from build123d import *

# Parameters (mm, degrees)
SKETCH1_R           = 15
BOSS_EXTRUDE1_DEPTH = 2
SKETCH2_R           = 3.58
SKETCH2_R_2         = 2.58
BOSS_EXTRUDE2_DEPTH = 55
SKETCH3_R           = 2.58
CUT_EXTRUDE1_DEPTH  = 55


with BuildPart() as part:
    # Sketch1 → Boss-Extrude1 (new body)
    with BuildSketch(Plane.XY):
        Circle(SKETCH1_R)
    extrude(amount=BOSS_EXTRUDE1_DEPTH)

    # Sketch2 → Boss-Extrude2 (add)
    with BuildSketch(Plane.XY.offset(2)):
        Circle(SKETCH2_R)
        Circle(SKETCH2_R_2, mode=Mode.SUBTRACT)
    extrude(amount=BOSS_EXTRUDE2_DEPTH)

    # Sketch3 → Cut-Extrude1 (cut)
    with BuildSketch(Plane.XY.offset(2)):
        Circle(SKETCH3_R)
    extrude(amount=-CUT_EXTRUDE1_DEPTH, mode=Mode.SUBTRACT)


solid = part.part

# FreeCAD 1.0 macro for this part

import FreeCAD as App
import Part
import Sketcher

V = App.Vector

doc = App.newDocument("Part")
body = doc.addObject("PartDesign::Body", "Body")

sketch1 = doc.addObject("Sketcher::SketchObject", "Sketch")
body.addObject(sketch1)
sketch1.AttachmentSupport = (doc.XY_Plane, [""])
sketch1.MapMode = "FlatFace"
sketch1.addGeometry(Part.Circle(V(0, 0, 0), V(0, 0, 1), 15), False)
sketch1.addConstraint(Sketcher.Constraint("Coincident", 0, 3, -1, 1))
sketch1.addConstraint(Sketcher.Constraint("Diameter", 0, 30.0))
pad1 = doc.addObject("PartDesign::Pad", "Pad")
body.addObject(pad1)
pad1.Profile = sketch1
pad1.Length = 2

sketch2 = doc.addObject("Sketcher::SketchObject", "Sketch001")
body.addObject(sketch2)
sketch2.AttachmentSupport = (doc.XY_Plane, [""])
sketch2.MapMode = "FlatFace"
sketch2.AttachmentOffset = App.Placement(V(0, 0, 2), App.Rotation())
sketch2.addGeometry(Part.Circle(V(0, 0, 0), V(0, 0, 1), 3.6), False)
sketch2.addGeometry(Part.Circle(V(0, 0, 0), V(0, 0, 1), 2.6), False)
sketch2.addConstraint(Sketcher.Constraint("Coincident", 0, 3, -1, 1))
sketch2.addConstraint(Sketcher.Constraint("Coincident", 1, 3, -1, 1))
sketch2.addConstraint(Sketcher.Constraint("Diameter", 0, 7.16))
sketch2.addConstraint(Sketcher.Constraint("Diameter", 1, 5.16))
pad2 = doc.addObject("PartDesign::Pad", "Pad001")
body.addObject(pad2)
pad2.Profile = sketch2
pad2.Length = 55

sketch3 = doc.addObject("Sketcher::SketchObject", "Sketch002")
body.addObject(sketch3)
sketch3.AttachmentSupport = (doc.XY_Plane, [""])
sketch3.MapMode = "FlatFace"
sketch3.AttachmentOffset = App.Placement(V(0, 0, 2), App.Rotation())
sketch3.addGeometry(Part.Circle(V(0, 0, 0), V(0, 0, 1), 2.6), False)
sketch3.addConstraint(Sketcher.Constraint("Coincident", 0, 3, -1, 1))
sketch3.addConstraint(Sketcher.Constraint("Diameter", 0, 5.16))
pocket1 = doc.addObject("PartDesign::Pocket", "Pocket")
body.addObject(pocket1)
pocket1.Profile = sketch3
pocket1.Length = 55

doc.recompute()
